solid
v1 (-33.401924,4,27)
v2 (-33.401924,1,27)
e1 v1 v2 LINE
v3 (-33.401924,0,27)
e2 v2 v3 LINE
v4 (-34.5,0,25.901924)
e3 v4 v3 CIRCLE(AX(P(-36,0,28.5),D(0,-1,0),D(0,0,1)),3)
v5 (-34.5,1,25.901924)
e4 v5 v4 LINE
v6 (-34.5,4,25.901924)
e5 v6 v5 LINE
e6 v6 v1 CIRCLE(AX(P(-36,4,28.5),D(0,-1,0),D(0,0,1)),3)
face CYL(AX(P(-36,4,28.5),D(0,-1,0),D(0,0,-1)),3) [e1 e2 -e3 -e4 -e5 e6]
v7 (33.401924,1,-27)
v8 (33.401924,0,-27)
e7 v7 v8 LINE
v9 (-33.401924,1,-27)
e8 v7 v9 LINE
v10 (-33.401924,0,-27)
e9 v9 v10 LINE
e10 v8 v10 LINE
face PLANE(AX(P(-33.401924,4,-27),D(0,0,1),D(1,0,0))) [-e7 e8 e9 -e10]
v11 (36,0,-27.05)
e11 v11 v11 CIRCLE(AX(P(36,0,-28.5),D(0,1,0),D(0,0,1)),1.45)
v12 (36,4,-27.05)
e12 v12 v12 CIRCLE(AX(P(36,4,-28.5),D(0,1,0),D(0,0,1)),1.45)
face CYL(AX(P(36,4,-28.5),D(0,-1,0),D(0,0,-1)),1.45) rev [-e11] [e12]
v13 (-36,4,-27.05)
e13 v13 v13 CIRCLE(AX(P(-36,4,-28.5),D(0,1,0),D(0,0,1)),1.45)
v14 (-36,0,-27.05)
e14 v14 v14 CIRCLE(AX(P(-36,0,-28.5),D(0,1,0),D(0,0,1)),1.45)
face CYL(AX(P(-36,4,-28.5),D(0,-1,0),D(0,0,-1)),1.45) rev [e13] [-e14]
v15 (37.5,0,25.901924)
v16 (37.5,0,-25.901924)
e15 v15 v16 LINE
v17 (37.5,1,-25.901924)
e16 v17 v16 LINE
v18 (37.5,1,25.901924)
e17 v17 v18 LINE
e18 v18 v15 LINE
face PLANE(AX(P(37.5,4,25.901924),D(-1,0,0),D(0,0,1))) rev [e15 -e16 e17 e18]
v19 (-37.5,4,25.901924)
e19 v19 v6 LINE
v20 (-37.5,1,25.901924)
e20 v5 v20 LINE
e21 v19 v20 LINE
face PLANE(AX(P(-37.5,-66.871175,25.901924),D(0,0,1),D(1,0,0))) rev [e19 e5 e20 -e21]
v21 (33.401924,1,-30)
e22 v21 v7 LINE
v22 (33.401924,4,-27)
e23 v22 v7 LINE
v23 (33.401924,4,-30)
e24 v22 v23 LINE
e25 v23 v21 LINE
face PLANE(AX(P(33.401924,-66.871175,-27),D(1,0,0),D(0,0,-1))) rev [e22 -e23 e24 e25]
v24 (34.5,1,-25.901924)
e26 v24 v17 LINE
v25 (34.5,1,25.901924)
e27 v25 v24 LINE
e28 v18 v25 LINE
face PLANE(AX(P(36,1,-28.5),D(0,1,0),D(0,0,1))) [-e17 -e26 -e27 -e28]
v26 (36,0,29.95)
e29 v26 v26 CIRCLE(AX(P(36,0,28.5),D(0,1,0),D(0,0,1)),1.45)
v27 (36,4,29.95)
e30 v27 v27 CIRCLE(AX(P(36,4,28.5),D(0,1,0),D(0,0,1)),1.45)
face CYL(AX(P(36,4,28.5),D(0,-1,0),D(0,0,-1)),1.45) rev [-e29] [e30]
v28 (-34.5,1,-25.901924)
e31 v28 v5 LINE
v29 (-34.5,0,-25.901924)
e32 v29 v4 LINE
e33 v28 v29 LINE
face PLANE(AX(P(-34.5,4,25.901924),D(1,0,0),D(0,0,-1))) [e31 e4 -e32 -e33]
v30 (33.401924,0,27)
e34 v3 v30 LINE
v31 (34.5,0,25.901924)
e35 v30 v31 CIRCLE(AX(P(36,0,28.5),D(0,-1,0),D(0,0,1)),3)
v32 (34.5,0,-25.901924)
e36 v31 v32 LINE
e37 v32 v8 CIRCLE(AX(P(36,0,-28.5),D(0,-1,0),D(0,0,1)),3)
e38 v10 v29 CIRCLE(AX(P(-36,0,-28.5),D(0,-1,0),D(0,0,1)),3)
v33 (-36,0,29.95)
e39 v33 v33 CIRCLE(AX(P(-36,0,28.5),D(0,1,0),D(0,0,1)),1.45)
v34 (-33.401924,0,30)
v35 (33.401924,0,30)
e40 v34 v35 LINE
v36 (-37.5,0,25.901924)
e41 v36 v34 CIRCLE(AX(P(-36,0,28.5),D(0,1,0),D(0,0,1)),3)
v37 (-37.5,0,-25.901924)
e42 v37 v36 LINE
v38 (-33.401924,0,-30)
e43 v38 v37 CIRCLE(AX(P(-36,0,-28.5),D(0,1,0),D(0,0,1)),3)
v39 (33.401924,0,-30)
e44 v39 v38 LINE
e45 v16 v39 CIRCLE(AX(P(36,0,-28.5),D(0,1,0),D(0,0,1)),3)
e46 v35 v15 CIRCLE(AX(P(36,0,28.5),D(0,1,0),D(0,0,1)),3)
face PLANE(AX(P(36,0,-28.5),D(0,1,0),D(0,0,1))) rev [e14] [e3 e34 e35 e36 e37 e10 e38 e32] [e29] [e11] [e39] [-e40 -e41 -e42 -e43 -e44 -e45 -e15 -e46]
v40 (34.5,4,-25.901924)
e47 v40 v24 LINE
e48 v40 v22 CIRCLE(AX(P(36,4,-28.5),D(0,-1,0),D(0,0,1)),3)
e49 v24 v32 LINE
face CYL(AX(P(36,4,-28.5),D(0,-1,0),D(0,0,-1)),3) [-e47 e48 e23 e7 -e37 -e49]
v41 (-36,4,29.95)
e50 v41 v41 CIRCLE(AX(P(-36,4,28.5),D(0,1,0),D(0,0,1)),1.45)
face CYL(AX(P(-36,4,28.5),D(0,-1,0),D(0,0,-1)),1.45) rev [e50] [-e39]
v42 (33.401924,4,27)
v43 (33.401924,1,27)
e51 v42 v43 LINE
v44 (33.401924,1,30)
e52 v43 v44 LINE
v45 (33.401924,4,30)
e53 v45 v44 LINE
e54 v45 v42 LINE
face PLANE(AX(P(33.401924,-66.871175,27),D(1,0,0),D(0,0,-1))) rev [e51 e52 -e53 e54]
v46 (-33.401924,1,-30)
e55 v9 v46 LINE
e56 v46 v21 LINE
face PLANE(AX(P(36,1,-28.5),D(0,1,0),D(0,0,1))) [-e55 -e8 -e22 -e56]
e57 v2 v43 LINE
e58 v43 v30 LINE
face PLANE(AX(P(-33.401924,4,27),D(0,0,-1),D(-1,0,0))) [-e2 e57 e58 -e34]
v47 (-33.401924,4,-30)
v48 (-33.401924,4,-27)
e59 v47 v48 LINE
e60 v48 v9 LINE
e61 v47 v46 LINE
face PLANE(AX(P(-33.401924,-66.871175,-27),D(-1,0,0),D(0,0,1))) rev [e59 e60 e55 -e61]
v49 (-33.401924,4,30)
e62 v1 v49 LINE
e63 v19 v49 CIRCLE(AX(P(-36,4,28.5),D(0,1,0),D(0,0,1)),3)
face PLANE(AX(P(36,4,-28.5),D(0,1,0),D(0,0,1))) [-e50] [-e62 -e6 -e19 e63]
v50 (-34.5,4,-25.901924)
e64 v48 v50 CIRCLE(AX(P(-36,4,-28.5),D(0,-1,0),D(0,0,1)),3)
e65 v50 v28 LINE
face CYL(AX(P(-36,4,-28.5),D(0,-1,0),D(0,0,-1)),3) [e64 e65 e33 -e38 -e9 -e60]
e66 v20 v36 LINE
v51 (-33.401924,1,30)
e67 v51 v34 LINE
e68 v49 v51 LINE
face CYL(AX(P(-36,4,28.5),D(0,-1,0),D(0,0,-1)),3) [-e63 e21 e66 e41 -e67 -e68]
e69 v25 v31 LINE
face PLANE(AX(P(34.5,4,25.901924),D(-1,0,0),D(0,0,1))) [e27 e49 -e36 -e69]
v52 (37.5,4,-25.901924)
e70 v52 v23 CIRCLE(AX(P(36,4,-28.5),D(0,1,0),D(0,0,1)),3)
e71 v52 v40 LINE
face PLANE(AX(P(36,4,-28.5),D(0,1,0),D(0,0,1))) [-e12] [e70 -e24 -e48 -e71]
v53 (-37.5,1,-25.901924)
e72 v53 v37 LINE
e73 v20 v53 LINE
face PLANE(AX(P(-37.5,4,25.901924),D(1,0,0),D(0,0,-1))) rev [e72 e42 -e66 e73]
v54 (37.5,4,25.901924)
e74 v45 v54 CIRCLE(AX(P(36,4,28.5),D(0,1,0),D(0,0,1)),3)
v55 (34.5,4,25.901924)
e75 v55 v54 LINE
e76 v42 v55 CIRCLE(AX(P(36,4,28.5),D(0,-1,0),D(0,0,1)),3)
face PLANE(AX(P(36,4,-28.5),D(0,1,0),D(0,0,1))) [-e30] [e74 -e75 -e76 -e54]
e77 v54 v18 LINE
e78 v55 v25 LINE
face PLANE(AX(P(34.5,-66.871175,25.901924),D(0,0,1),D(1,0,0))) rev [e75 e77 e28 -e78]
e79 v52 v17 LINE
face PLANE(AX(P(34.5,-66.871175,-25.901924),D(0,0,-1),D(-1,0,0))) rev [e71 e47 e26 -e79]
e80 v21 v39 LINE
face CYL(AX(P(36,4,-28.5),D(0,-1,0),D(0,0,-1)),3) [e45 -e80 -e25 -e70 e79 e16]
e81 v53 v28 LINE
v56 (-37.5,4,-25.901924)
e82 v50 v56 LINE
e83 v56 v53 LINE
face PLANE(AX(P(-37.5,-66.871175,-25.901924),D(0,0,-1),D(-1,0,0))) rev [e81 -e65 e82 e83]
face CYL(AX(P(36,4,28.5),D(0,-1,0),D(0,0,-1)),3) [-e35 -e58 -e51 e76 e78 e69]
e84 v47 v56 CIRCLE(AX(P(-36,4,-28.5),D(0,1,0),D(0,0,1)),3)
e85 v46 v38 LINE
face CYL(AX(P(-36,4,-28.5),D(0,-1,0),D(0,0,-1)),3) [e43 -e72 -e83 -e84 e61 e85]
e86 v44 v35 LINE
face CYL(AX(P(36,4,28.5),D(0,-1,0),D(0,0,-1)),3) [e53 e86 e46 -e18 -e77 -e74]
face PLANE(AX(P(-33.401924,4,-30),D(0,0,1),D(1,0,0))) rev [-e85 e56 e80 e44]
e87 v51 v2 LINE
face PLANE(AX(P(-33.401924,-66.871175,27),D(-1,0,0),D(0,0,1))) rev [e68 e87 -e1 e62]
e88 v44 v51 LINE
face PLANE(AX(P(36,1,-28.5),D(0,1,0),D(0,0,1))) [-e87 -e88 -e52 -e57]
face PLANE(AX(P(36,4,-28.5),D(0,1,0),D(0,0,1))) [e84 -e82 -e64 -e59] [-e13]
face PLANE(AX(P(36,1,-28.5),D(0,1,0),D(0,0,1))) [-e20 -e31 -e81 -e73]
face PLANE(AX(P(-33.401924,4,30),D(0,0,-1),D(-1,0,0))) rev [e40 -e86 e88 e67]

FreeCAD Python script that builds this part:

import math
import FreeCAD as App
import Part
import Sketcher
from FreeCAD import Vector

doc = App.newDocument("Part")
body = doc.addObject("PartDesign::Body", "Body")

# Sketch on XZ plane
sketch1 = doc.addObject("Sketcher::SketchObject", "Sketch")
body.addObject(sketch1)
sketch1.AttachmentSupport = (doc.XZ_Plane, [""])
sketch1.MapMode = "FlatFace"
sketch1.addGeometry(Part.LineSegment(Vector(33.4, -30, 0), Vector(-33.4, -30, 0)), False)
sketch1.addGeometry(Part.ArcOfCircle(Part.Circle(Vector(-36, -28.5, 0), Vector(0, 0, 1), 3), math.radians(120), math.radians(330)), False)
sketch1.addGeometry(Part.LineSegment(Vector(-37.5, -25.9, 0), Vector(-37.5, 25.9, 0)), False)
sketch1.addGeometry(Part.ArcOfCircle(Part.Circle(Vector(-36, 28.5, 0), Vector(0, 0, 1), 3), math.radians(30), math.radians(240)), False)
sketch1.addGeometry(Part.LineSegment(Vector(-33.4, 30, 0), Vector(33.4, 30, 0)), False)
sketch1.addGeometry(Part.ArcOfCircle(Part.Circle(Vector(36, 28.5, 0), Vector(0, 0, 1), 3), math.radians(-60), math.radians(150)), False)
sketch1.addGeometry(Part.LineSegment(Vector(37.5, 25.9, 0), Vector(37.5, -25.9, 0)), False)
sketch1.addGeometry(Part.ArcOfCircle(Part.Circle(Vector(36, -28.5, 0), Vector(0, 0, 1), 3), math.radians(-150), math.radians(60)), False)
sketch1.addGeometry(Part.Circle(Vector(36, 28.5, 0), Vector(0, 0, 1), 1.4), False)
sketch1.addGeometry(Part.Circle(Vector(-36, 28.5, 0), Vector(0, 0, 1), 1.4), False)
sketch1.addGeometry(Part.Circle(Vector(36, -28.5, 0), Vector(0, 0, 1), 1.4), False)
sketch1.addGeometry(Part.LineSegment(Vector(-33.4, -27, 0), Vector(33.4, -27, 0)), False)
sketch1.addGeometry(Part.ArcOfCircle(Part.Circle(Vector(36, -28.5, 0), Vector(0, 0, 1), 3), math.radians(120), math.radians(150)), False)
sketch1.addGeometry(Part.LineSegment(Vector(34.5, -25.9, 0), Vector(34.5, 25.9, 0)), False)
sketch1.addGeometry(Part.ArcOfCircle(Part.Circle(Vector(36, 28.5, 0), Vector(0, 0, 1), 3), math.radians(-150), math.radians(-120)), False)
sketch1.addGeometry(Part.LineSegment(Vector(33.4, 27, 0), Vector(-33.4, 27, 0)), False)
sketch1.addGeometry(Part.ArcOfCircle(Part.Circle(Vector(-36, 28.5, 0), Vector(0, 0, 1), 3), math.radians(-60), math.radians(-30)), False)
sketch1.addGeometry(Part.LineSegment(Vector(-34.5, 25.9, 0), Vector(-34.5, -25.9, 0)), False)
sketch1.addGeometry(Part.ArcOfCircle(Part.Circle(Vector(-36, -28.5, 0), Vector(0, 0, 1), 3), math.radians(30), math.radians(60)), False)
sketch1.addGeometry(Part.Circle(Vector(-36, -28.5, 0), Vector(0, 0, 1), 1.4), False)
sketch1.addConstraint(Sketcher.Constraint("Coincident", 0, 2, 1, 2))
sketch1.addConstraint(Sketcher.Constraint("Coincident", 1, 1, 2, 1))
sketch1.addConstraint(Sketcher.Constraint("Coincident", 2, 2, 3, 2))
sketch1.addConstraint(Sketcher.Constraint("Coincident", 3, 1, 4, 1))
sketch1.addConstraint(Sketcher.Constraint("Coincident", 4, 2, 5, 2))
sketch1.addConstraint(Sketcher.Constraint("Coincident", 5, 1, 6, 1))
sketch1.addConstraint(Sketcher.Constraint("Coincident", 6, 2, 7, 2))
sketch1.addConstraint(Sketcher.Constraint("Coincident", 7, 1, 0, 1))
sketch1.addConstraint(Sketcher.Constraint("Coincident", 11, 2, 12, 2))
sketch1.addConstraint(Sketcher.Constraint("Coincident", 12, 1, 13, 1))
sketch1.addConstraint(Sketcher.Constraint("Coincident", 13, 2, 14, 2))
sketch1.addConstraint(Sketcher.Constraint("Coincident", 14, 1, 15, 1))
sketch1.addConstraint(Sketcher.Constraint("Coincident", 15, 2, 16, 2))
sketch1.addConstraint(Sketcher.Constraint("Coincident", 16, 1, 17, 1))
sketch1.addConstraint(Sketcher.Constraint("Coincident", 17, 2, 18, 2))
sketch1.addConstraint(Sketcher.Constraint("Coincident", 18, 1, 11, 1))
sketch1.addConstraint(Sketcher.Constraint("Horizontal", 0))
sketch1.addConstraint(Sketcher.Constraint("Vertical", 2))
sketch1.addConstraint(Sketcher.Constraint("Horizontal", 4))
sketch1.addConstraint(Sketcher.Constraint("Vertical", 6))
sketch1.addConstraint(Sketcher.Constraint("Horizontal", 11))
sketch1.addConstraint(Sketcher.Constraint("Vertical", 13))
sketch1.addConstraint(Sketcher.Constraint("Horizontal", 15))
sketch1.addConstraint(Sketcher.Constraint("Vertical", 17))
sketch1.addConstraint(Sketcher.Constraint("Coincident", 8, 3, 5, 3))
sketch1.addConstraint(Sketcher.Constraint("Coincident", 9, 3, 3, 3))
sketch1.addConstraint(Sketcher.Constraint("Coincident", 10, 3, 7, 3))
sketch1.addConstraint(Sketcher.Constraint("Coincident", 12, 3, 7, 3))
sketch1.addConstraint(Sketcher.Constraint("Coincident", 14, 3, 5, 3))
sketch1.addConstraint(Sketcher.Constraint("Coincident", 16, 3, 3, 3))
sketch1.addConstraint(Sketcher.Constraint("Coincident", 18, 3, 1, 3))
sketch1.addConstraint(Sketcher.Constraint("Coincident", 19, 3, 1, 3))
sketch1.addConstraint(Sketcher.Constraint("Equal", 1, 3))
sketch1.addConstraint(Sketcher.Constraint("Equal", 3, 5))
sketch1.addConstraint(Sketcher.Constraint("Equal", 5, 7))
sketch1.addConstraint(Sketcher.Constraint("Equal", 8, 9))
sketch1.addConstraint(Sketcher.Constraint("Equal", 9, 10))
sketch1.addConstraint(Sketcher.Constraint("Equal", 7, 12))
sketch1.addConstraint(Sketcher.Constraint("Equal", 12, 14))
sketch1.addConstraint(Sketcher.Constraint("Equal", 14, 16))
sketch1.addConstraint(Sketcher.Constraint("Equal", 16, 18))
sketch1.addConstraint(Sketcher.Constraint("Equal", 10, 19))
sketch1.addConstraint(Sketcher.Constraint("Symmetric", 1, 3, 5, 3, -1, 1))
sketch1.addConstraint(Sketcher.Constraint("Symmetric", 3, 3, 7, 3, -1, 1))
sketch1.addConstraint(Sketcher.Constraint("Symmetric", 3, 3, 5, 3, -2))
sketch1.addConstraint(Sketcher.Constraint("Horizontal", 2, 2, 5, 1))
sketch1.addConstraint(Sketcher.Constraint("Horizontal", 6, 2, 12, 1))
sketch1.addConstraint(Sketcher.Constraint("Horizontal", 13, 2, 16, 1))
sketch1.addConstraint(Sketcher.Constraint("Vertical", 0, 2, 3, 1))
sketch1.addConstraint(Sketcher.Constraint("Vertical", 7, 1, 11, 2))
sketch1.addConstraint(Sketcher.Constraint("Vertical", 11, 2, 14, 1))
sketch1.addConstraint(Sketcher.Constraint("Radius", 1, 3.0))
sketch1.addConstraint(Sketcher.Constraint("Diameter", 8, 2.9))
sketch1.addConstraint(Sketcher.Constraint("DistanceX", 1, 3, -1, 1, 36.0))
sketch1.addConstraint(Sketcher.Constraint("DistanceY", 0, 2, -1, 1, 30.0))
sketch1.addConstraint(Sketcher.Constraint("DistanceY", 11, 2, -1, 1, 27.0))
sketch1.addConstraint(Sketcher.Constraint("DistanceX", 12, 1, 6, 2, 3.0))
pad1 = doc.addObject("PartDesign::Pad", "Pad")
body.addObject(pad1)
pad1.Profile = sketch1
pad1.Length = 4
pad1.Reversed = True

# Sketch on XZ plane
sketch2 = doc.addObject("Sketcher::SketchObject", "Sketch001")
body.addObject(sketch2)
sketch2.AttachmentSupport = (doc.XZ_Plane, [""])
sketch2.MapMode = "FlatFace"
sketch2.AttachmentOffset = App.Placement(Vector(0, 0, -4), App.Rotation())
sketch2.addGeometry(Part.LineSegment(Vector(-37.5, -25.9, 0), Vector(-37.5, 25.9, 0)), False)
sketch2.addGeometry(Part.LineSegment(Vector(-37.5, 25.9, 0), Vector(-34.5, 25.9, 0)), False)
sketch2.addGeometry(Part.LineSegment(Vector(-34.5, 25.9, 0), Vector(-34.5, -25.9, 0)), False)
sketch2.addGeometry(Part.LineSegment(Vector(-34.5, -25.9, 0), Vector(-37.5, -25.9, 0)), False)
sketch2.addGeometry(Part.LineSegment(Vector(-33.4, 27, 0), Vector(-33.4, 30, 0)), False)
sketch2.addGeometry(Part.LineSegment(Vector(-33.4, 30, 0), Vector(33.4, 30, 0)), False)
sketch2.addGeometry(Part.LineSegment(Vector(33.4, 30, 0), Vector(33.4, 27, 0)), False)
sketch2.addGeometry(Part.LineSegment(Vector(33.4, 27, 0), Vector(-33.4, 27, 0)), False)
sketch2.addGeometry(Part.LineSegment(Vector(34.5, -25.9, 0), Vector(34.5, 25.9, 0)), False)
sketch2.addGeometry(Part.LineSegment(Vector(34.5, 25.9, 0), Vector(37.5, 25.9, 0)), False)
sketch2.addGeometry(Part.LineSegment(Vector(37.5, 25.9, 0), Vector(37.5, -25.9, 0)), False)
sketch2.addGeometry(Part.LineSegment(Vector(37.5, -25.9, 0), Vector(34.5, -25.9, 0)), False)
sketch2.addGeometry(Part.LineSegment(Vector(-33.4, -30, 0), Vector(-33.4, -27, 0)), False)
sketch2.addGeometry(Part.LineSegment(Vector(-33.4, -27, 0), Vector(33.4, -27, 0)), False)
sketch2.addGeometry(Part.LineSegment(Vector(33.4, -27, 0), Vector(33.4, -30, 0)), False)
sketch2.addGeometry(Part.LineSegment(Vector(33.4, -30, 0), Vector(-33.4, -30, 0)), False)
sketch2.addConstraint(Sketcher.Constraint("Coincident", 0, 2, 1, 1))
sketch2.addConstraint(Sketcher.Constraint("Coincident", 1, 2, 2, 1))
sketch2.addConstraint(Sketcher.Constraint("Coincident", 2, 2, 3, 1))
sketch2.addConstraint(Sketcher.Constraint("Coincident", 3, 2, 0, 1))
sketch2.addConstraint(Sketcher.Constraint("Coincident", 4, 2, 5, 1))
sketch2.addConstraint(Sketcher.Constraint("Coincident", 5, 2, 6, 1))
sketch2.addConstraint(Sketcher.Constraint("Coincident", 6, 2, 7, 1))
sketch2.addConstraint(Sketcher.Constraint("Coincident", 7, 2, 4, 1))
sketch2.addConstraint(Sketcher.Constraint("Coincident", 8, 2, 9, 1))
sketch2.addConstraint(Sketcher.Constraint("Coincident", 9, 2, 10, 1))
sketch2.addConstraint(Sketcher.Constraint("Coincident", 10, 2, 11, 1))
sketch2.addConstraint(Sketcher.Constraint("Coincident", 11, 2, 8, 1))
sketch2.addConstraint(Sketcher.Constraint("Coincident", 12, 2, 13, 1))
sketch2.addConstraint(Sketcher.Constraint("Coincident", 13, 2, 14, 1))
sketch2.addConstraint(Sketcher.Constraint("Coincident", 14, 2, 15, 1))
sketch2.addConstraint(Sketcher.Constraint("Coincident", 15, 2, 12, 1))
sketch2.addConstraint(Sketcher.Constraint("Vertical", 0))
sketch2.addConstraint(Sketcher.Constraint("Horizontal", 1))
sketch2.addConstraint(Sketcher.Constraint("Vertical", 2))
sketch2.addConstraint(Sketcher.Constraint("Horizontal", 3))
sketch2.addConstraint(Sketcher.Constraint("Vertical", 4))
sketch2.addConstraint(Sketcher.Constraint("Horizontal", 5))
sketch2.addConstraint(Sketcher.Constraint("Vertical", 6))
sketch2.addConstraint(Sketcher.Constraint("Horizontal", 7))
sketch2.addConstraint(Sketcher.Constraint("Vertical", 8))
sketch2.addConstraint(Sketcher.Constraint("Horizontal", 9))
sketch2.addConstraint(Sketcher.Constraint("Vertical", 10))
sketch2.addConstraint(Sketcher.Constraint("Horizontal", 11))
sketch2.addConstraint(Sketcher.Constraint("Vertical", 12))
sketch2.addConstraint(Sketcher.Constraint("Horizontal", 13))
sketch2.addConstraint(Sketcher.Constraint("Vertical", 14))
sketch2.addConstraint(Sketcher.Constraint("Horizontal", 15))
sketch2.addConstraint(Sketcher.Constraint("Symmetric", 2, 2, 8, 2, -1, 1))
sketch2.addConstraint(Sketcher.Constraint("Symmetric", 0, 2, 10, 2, -1, 1))
sketch2.addConstraint(Sketcher.Constraint("Symmetric", 6, 2, 12, 2, -1, 1))
sketch2.addConstraint(Sketcher.Constraint("Symmetric", 4, 2, 14, 2, -1, 1))
sketch2.addConstraint(Sketcher.Constraint("Horizontal", 1, 2, 8, 2))
sketch2.addConstraint(Sketcher.Constraint("Vertical", 7, 2, 12, 2))
sketch2.addConstraint(Sketcher.Constraint("Equal", 11, 4))
sketch2.addConstraint(Sketcher.Constraint("DistanceX", 1, 1, 1, 2, 3.0))
sketch2.addConstraint(Sketcher.Constraint("DistanceY", -1, 1, 4, 2, 30.0))
sketch2.addConstraint(Sketcher.Constraint("DistanceX", 1, 2, 8, 2, 69.0))
sketch2.addConstraint(Sketcher.Constraint("DistanceX", 5, 1, 5, 2, 66.803848))
sketch2.addConstraint(Sketcher.Constraint("DistanceY", 0, 1, 0, 2, 51.803848))
pocket1 = doc.addObject("PartDesign::Pocket", "Pocket")
body.addObject(pocket1)
pocket1.Profile = sketch2
pocket1.Length = 3
pocket1.Reversed = True

doc.recompute()
